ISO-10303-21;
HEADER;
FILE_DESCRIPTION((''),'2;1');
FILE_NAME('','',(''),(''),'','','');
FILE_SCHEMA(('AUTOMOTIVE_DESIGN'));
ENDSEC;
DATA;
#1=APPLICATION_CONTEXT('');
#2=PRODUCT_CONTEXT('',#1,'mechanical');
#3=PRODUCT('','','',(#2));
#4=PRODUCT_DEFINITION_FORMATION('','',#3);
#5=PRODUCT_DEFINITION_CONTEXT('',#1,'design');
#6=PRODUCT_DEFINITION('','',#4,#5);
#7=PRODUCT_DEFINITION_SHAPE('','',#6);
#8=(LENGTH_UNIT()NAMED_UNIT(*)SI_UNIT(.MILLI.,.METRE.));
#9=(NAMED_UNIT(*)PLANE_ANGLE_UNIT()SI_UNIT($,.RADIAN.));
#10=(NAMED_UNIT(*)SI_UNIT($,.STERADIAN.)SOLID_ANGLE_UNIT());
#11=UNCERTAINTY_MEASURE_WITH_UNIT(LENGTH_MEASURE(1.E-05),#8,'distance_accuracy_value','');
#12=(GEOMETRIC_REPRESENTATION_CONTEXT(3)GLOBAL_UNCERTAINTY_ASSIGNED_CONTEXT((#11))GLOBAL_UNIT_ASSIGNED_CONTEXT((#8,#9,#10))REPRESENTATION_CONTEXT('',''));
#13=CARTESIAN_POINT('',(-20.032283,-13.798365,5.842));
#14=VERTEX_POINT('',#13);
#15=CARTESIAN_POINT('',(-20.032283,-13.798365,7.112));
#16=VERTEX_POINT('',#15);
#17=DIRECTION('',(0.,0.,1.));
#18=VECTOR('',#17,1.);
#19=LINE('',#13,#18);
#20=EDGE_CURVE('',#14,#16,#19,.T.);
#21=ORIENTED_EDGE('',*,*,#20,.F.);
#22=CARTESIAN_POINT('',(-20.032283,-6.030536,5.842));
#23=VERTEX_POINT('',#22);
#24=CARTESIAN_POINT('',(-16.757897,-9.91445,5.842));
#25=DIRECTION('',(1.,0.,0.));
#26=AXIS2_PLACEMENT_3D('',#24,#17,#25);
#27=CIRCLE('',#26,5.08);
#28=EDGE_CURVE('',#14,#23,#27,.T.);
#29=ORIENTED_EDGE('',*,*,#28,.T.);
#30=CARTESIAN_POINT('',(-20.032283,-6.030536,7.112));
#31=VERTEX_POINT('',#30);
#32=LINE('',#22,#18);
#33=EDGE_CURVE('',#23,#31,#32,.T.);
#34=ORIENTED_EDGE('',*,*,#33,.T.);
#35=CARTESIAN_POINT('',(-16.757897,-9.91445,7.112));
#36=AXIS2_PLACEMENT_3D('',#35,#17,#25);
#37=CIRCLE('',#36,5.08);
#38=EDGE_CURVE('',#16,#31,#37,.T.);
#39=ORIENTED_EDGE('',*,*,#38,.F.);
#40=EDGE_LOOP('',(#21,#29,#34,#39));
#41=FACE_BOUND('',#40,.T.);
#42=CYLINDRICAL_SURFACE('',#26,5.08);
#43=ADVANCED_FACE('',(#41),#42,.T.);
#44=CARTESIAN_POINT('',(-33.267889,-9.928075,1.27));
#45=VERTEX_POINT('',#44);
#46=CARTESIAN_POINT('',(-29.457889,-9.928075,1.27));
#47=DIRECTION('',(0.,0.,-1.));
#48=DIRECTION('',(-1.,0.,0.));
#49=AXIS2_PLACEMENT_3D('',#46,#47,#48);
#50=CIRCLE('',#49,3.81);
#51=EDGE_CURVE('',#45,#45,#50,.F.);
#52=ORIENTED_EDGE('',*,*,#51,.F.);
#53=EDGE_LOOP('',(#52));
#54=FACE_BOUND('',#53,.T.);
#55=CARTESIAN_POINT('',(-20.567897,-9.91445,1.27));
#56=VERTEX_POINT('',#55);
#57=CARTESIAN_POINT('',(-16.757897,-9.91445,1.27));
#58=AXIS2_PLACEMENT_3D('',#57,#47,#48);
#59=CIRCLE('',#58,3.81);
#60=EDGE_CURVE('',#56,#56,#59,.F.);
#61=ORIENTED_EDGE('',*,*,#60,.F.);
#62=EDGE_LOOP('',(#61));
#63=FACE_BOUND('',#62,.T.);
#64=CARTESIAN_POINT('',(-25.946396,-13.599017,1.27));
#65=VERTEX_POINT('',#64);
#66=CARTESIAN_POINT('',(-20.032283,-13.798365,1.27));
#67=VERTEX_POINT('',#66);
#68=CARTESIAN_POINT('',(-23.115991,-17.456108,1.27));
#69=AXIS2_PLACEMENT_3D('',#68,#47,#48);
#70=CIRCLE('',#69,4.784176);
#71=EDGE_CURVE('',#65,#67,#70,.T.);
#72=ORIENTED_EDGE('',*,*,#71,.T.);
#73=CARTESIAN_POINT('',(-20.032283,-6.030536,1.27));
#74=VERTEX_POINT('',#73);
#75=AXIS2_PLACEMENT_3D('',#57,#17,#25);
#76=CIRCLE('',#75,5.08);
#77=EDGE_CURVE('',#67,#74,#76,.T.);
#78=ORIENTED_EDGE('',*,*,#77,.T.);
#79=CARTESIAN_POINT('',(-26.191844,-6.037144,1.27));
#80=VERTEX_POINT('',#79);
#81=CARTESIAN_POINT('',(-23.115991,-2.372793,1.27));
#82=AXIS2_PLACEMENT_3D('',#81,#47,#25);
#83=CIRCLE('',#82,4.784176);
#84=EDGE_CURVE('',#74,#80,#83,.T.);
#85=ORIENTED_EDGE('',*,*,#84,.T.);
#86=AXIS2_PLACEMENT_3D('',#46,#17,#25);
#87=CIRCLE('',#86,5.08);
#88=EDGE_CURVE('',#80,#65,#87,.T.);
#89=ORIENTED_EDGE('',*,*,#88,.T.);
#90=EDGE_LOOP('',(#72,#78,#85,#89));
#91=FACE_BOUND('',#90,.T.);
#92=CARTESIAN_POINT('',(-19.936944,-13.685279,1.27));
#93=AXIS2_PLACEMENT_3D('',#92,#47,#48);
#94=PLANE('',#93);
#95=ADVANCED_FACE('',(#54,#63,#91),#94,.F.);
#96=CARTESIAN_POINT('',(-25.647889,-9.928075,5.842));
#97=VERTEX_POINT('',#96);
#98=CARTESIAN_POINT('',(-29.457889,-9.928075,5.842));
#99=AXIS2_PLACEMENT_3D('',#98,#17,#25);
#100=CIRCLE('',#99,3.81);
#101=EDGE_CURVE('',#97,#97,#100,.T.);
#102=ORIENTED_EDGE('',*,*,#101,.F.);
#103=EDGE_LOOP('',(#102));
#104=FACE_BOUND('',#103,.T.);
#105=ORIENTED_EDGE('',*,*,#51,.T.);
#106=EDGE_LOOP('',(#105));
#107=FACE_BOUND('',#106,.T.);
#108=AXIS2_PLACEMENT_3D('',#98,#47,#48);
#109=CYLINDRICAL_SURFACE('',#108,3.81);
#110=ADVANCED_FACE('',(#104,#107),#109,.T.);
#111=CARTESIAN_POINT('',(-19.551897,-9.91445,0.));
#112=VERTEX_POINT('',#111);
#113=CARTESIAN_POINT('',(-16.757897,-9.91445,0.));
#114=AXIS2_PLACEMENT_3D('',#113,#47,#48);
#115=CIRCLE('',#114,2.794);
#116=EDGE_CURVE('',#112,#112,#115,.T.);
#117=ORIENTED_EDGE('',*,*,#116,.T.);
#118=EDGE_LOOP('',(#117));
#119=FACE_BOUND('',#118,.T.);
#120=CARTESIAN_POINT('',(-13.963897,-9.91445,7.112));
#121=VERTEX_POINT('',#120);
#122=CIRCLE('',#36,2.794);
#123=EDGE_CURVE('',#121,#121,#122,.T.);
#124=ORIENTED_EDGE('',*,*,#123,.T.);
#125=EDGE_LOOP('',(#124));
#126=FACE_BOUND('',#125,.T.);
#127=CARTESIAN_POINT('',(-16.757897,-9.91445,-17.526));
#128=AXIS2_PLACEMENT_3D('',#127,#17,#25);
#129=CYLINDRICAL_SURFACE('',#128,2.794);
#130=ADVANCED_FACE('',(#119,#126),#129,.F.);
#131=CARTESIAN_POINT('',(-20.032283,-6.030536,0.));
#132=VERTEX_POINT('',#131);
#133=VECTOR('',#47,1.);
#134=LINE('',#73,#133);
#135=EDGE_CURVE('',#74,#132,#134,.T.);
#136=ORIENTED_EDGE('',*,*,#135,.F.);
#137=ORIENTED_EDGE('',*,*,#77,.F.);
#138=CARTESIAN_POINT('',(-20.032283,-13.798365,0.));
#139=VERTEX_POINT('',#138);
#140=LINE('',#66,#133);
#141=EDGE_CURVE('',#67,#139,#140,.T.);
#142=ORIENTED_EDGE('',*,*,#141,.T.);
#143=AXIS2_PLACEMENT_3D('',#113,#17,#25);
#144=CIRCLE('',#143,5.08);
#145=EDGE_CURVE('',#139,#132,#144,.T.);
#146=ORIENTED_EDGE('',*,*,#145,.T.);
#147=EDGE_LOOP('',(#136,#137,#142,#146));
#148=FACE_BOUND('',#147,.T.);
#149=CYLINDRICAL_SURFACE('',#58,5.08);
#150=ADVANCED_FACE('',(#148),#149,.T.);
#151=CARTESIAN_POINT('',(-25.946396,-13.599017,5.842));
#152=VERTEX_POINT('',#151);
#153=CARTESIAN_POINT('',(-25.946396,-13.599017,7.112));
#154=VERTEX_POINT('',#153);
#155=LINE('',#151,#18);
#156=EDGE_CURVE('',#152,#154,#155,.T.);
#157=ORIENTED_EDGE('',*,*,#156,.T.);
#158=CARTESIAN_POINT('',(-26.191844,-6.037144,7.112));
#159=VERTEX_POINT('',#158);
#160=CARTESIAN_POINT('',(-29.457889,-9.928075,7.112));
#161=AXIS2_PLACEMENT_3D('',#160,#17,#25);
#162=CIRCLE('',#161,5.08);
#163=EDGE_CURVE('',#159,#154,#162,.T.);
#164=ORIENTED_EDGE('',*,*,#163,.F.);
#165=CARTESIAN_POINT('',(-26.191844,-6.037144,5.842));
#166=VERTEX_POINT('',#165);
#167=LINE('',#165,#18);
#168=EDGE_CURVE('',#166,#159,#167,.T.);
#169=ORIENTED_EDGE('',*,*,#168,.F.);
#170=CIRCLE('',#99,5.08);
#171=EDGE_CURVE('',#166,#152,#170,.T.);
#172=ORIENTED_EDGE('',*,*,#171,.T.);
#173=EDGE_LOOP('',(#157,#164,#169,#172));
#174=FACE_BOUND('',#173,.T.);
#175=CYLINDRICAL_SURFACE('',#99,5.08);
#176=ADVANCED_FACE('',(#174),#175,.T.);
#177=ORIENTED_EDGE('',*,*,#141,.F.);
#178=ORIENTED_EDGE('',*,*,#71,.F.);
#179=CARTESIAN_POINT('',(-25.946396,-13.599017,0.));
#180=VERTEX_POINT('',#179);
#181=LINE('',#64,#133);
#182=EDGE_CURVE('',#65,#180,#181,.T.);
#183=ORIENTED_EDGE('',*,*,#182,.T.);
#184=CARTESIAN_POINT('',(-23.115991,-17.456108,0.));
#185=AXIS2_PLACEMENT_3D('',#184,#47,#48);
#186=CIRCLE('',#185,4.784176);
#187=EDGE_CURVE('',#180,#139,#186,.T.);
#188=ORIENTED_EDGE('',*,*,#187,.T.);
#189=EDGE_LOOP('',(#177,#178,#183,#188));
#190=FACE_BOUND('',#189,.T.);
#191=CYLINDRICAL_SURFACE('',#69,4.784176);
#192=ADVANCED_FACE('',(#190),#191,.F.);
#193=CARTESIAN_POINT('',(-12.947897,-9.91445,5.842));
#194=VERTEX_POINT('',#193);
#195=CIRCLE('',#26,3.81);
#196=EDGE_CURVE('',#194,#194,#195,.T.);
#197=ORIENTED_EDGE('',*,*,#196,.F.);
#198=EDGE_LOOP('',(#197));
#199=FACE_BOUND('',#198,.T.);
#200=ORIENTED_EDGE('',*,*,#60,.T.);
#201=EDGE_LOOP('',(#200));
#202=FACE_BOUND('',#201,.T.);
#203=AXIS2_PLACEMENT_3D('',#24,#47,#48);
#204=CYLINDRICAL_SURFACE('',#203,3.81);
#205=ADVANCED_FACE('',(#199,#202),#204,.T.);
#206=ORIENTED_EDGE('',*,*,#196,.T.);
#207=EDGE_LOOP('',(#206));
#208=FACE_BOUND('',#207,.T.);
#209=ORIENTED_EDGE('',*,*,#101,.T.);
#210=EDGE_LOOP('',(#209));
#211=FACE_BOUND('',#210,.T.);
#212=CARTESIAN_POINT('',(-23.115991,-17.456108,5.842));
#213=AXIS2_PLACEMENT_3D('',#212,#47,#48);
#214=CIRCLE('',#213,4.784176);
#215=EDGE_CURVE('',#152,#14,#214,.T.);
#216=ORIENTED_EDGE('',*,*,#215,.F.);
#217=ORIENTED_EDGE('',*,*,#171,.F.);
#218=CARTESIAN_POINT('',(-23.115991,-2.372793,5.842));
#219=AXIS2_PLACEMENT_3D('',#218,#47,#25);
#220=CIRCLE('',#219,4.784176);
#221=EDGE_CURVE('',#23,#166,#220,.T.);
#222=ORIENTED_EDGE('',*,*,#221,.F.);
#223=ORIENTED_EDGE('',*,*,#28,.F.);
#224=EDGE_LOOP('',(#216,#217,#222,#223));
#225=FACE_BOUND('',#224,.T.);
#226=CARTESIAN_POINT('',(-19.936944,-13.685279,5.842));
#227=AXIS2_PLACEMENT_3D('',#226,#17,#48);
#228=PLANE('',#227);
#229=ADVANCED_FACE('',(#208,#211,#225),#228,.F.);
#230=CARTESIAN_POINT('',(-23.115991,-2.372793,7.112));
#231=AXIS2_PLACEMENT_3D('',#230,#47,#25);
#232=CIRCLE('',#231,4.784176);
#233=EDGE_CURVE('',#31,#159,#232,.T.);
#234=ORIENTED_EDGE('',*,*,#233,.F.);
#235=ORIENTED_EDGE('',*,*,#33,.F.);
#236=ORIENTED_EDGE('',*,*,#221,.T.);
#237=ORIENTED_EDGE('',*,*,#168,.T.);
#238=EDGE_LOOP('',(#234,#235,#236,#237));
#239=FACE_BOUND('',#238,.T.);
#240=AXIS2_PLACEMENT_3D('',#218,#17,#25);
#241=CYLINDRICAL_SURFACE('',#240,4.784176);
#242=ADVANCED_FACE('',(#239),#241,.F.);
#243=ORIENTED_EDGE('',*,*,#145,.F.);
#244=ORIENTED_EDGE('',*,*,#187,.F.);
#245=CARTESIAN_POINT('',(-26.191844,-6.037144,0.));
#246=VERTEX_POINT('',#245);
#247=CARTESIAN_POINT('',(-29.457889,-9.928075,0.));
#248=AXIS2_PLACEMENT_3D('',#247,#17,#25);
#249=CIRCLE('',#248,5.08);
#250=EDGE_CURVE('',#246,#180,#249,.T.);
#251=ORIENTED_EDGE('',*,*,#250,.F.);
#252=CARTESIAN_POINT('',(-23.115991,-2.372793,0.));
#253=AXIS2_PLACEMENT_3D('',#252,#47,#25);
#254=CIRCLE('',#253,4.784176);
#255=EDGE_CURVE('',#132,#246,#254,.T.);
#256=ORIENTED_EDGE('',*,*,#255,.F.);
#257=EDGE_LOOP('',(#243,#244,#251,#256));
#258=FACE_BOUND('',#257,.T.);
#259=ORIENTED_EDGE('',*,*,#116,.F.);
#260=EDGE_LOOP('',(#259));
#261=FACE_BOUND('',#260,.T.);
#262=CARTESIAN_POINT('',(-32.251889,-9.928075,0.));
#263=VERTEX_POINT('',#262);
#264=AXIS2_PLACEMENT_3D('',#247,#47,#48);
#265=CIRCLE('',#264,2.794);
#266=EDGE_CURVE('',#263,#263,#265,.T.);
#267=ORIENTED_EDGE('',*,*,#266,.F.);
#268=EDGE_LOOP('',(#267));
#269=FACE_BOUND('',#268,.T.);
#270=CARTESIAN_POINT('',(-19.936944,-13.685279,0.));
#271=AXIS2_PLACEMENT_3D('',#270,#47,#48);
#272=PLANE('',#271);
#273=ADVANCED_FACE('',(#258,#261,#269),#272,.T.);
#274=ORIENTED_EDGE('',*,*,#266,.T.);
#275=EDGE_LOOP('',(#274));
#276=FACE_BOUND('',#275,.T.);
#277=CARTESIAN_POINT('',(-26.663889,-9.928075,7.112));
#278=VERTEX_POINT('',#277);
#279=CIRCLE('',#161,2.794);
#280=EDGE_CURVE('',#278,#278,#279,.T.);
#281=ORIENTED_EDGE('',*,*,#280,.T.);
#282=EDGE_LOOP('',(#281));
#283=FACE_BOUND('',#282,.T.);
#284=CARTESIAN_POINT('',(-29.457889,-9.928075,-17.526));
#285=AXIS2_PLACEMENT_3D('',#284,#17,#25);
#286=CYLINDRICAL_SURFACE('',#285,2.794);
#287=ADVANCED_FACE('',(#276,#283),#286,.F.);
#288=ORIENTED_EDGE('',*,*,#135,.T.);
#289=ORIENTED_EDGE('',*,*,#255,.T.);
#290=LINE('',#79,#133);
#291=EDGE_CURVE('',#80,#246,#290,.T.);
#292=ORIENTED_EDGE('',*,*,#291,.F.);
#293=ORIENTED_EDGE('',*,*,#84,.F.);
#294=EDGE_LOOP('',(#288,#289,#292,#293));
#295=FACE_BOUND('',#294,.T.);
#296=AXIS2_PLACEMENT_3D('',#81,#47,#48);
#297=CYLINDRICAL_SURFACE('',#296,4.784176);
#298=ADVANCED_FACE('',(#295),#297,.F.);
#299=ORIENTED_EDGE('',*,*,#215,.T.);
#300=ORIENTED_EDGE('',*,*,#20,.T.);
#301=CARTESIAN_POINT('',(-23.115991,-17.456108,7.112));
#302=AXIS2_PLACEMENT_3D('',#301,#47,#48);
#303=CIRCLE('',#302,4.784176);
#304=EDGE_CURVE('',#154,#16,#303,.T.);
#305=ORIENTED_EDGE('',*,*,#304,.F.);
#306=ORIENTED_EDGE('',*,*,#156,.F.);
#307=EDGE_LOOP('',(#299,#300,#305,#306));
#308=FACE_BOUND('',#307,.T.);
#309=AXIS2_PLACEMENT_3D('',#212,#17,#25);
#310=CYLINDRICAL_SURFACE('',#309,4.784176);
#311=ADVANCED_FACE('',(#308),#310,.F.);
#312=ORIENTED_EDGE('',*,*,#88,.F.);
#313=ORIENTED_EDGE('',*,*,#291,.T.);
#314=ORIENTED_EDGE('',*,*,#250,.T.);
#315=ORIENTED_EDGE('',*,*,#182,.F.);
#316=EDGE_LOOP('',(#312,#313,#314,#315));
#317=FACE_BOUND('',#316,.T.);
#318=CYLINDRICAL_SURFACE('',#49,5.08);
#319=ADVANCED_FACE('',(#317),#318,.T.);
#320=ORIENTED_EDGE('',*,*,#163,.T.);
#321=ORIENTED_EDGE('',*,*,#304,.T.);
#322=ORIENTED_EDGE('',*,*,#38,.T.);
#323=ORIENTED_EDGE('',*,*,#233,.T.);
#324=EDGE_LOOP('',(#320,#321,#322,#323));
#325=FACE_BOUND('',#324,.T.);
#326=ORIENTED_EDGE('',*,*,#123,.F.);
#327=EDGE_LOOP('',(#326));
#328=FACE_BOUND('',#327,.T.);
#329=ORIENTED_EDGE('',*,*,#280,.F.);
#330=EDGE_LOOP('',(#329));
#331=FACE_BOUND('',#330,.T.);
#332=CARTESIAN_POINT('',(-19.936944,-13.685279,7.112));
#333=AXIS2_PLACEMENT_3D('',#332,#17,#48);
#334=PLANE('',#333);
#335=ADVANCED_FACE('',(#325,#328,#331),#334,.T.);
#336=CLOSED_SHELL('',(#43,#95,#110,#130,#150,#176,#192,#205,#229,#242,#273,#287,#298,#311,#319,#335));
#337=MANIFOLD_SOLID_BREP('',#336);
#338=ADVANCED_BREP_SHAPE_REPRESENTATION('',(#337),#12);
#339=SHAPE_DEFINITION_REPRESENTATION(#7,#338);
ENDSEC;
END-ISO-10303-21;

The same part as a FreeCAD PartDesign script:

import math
import FreeCAD as App
import Part
import Sketcher

V = App.Vector
Q = App.Units.Quantity

doc = App.newDocument("Part")
body = doc.addObject("PartDesign::Body", "Body")

sketch1 = doc.addObject("Sketcher::SketchObject", "Sketch")
body.addObject(sketch1)
sketch1.AttachmentSupport = (doc.XY_Plane, [""])
sketch1.MapMode = "FlatFace"
sketch1.addGeometry([
    Part.ArcOfCircle(Part.Circle(V(-29.5, -9.9, 0), V(0, 0, 1), 5.1), math.radians(50), math.radians(314)),
    Part.ArcOfCircle(Part.Circle(V(-23.1, -17.5, 0), V(0, 0, 1), 4.8), math.radians(50), math.radians(126)),
    Part.ArcOfCircle(Part.Circle(V(-16.8, -9.9, 0), V(0, 0, 1), 5.1), math.radians(-130), math.radians(130)),
    Part.ArcOfCircle(Part.Circle(V(-23.1, -2.4, 0), V(0, 0, 1), 4.8), math.radians(-130), math.radians(-50)),
], False)
sketch1.addConstraint([
    Sketcher.Constraint("Coincident", 0, 2, 1, 2),
    Sketcher.Constraint("Tangent", 1, 1, 2, 1),
    Sketcher.Constraint("Tangent", 2, 2, 3, 2),
    Sketcher.Constraint("Tangent", 3, 1, 0, 1),
    Sketcher.Constraint("Equal", 0, 2),
    Sketcher.Constraint("Equal", 1, 3),
    Sketcher.Constraint("Vertical", 1, 3, 3, 3),
    Sketcher.Constraint("Radius", 0, Q("0.2 in")),
    Sketcher.Constraint("Radius", 1, 4.784176),
    Sketcher.Constraint("DistanceX", 0, 3, 1, 3, 6.341898),
    Sketcher.Constraint("DistanceX", 0, 2, 2, 3, 9.188499),
    Sketcher.Constraint("DistanceX", 0, 3, -1, 1, 29.457889),
    Sketcher.Constraint("DistanceY", 2, 3, -1, 1, 9.91445),
])
pad1 = doc.addObject("PartDesign::Pad", "Pad")
body.addObject(pad1)
pad1.Profile = sketch1
pad1.Length = Q("0.05 in")

sketch2 = doc.addObject("Sketcher::SketchObject", "Sketch001")
body.addObject(sketch2)
sketch2.AttachmentSupport = (doc.XY_Plane, [""])
sketch2.MapMode = "FlatFace"
sketch2.AttachmentOffset = App.Placement(V(0, 0, 0.05 * 25.4), App.Rotation())
sketch2.addGeometry([
    Part.Circle(V(-16.8, -9.9, 0), V(0, 0, 1), 3.8),
    Part.Circle(V(-29.5, -9.9, 0), V(0, 0, 1), 3.8),
], False)
sketch2.addConstraint([
    Sketcher.Constraint("Equal", 0, 1),
    Sketcher.Constraint("Diameter", 0, Q("0.3 in")),
    Sketcher.Constraint("DistanceY", 0, 3, -1, 1, 9.91445),
    Sketcher.Constraint("DistanceX", 1, 3, -1, 1, 29.457889),
    Sketcher.Constraint("DistanceX", 0, 3, -1, 1, 16.757897),
    Sketcher.Constraint("DistanceY", 1, 3, -1, 1, 9.928075),
])
pad2 = doc.addObject("PartDesign::Pad", "Pad001")
body.addObject(pad2)
pad2.Profile = sketch2
pad2.Length = Q("0.18 in")
doc.recompute()

datumplane = doc.addObject("PartDesign::Plane", "DatumPlane")
body.addObject(datumplane)
datumplane.AttachmentSupport = (doc.XY_Plane, [""])
datumplane.MapMode = "FlatFace"
datumplane.AttachmentOffset = App.Placement(V(0, 0, 0.14 * 25.4), App.Rotation())
mirrored = doc.addObject("PartDesign::Mirrored", "Mirrored")
body.addObject(mirrored)
mirrored.Originals = [pad1]
mirrored.MirrorPlane = (datumplane, [""])
body.Tip = mirrored

sketch3 = doc.addObject("Sketcher::SketchObject", "Sketch002")
body.addObject(sketch3)
sketch3.AttachmentSupport = (doc.XY_Plane, [""])
sketch3.MapMode = "FlatFace"
sketch3.AttachmentOffset = App.Placement(V(0, 0, 0.28 * 25.4), App.Rotation())
sketch3.addGeometry([
    Part.Circle(V(-29.5, -9.9, 0), V(0, 0, 1), 2.8),
    Part.Circle(V(-16.8, -9.9, 0), V(0, 0, 1), 2.8),
], False)
sketch3.addConstraint([
    Sketcher.Constraint("Equal", 0, 1),
    Sketcher.Constraint("Diameter", 0, Q("0.22 in")),
    Sketcher.Constraint("DistanceX", 0, 3, -1, 1, 29.457889),
    Sketcher.Constraint("DistanceY", 1, 3, -1, 1, 9.91445),
    Sketcher.Constraint("DistanceY", 0, 3, -1, 1, 9.928075),
    Sketcher.Constraint("DistanceX", 1, 3, -1, 1, 16.757897),
])
pocket1 = doc.addObject("PartDesign::Pocket", "Pocket")
body.addObject(pocket1)
pocket1.Profile = sketch3
pocket1.Length = Q("0.97 in")

doc.recompute()
